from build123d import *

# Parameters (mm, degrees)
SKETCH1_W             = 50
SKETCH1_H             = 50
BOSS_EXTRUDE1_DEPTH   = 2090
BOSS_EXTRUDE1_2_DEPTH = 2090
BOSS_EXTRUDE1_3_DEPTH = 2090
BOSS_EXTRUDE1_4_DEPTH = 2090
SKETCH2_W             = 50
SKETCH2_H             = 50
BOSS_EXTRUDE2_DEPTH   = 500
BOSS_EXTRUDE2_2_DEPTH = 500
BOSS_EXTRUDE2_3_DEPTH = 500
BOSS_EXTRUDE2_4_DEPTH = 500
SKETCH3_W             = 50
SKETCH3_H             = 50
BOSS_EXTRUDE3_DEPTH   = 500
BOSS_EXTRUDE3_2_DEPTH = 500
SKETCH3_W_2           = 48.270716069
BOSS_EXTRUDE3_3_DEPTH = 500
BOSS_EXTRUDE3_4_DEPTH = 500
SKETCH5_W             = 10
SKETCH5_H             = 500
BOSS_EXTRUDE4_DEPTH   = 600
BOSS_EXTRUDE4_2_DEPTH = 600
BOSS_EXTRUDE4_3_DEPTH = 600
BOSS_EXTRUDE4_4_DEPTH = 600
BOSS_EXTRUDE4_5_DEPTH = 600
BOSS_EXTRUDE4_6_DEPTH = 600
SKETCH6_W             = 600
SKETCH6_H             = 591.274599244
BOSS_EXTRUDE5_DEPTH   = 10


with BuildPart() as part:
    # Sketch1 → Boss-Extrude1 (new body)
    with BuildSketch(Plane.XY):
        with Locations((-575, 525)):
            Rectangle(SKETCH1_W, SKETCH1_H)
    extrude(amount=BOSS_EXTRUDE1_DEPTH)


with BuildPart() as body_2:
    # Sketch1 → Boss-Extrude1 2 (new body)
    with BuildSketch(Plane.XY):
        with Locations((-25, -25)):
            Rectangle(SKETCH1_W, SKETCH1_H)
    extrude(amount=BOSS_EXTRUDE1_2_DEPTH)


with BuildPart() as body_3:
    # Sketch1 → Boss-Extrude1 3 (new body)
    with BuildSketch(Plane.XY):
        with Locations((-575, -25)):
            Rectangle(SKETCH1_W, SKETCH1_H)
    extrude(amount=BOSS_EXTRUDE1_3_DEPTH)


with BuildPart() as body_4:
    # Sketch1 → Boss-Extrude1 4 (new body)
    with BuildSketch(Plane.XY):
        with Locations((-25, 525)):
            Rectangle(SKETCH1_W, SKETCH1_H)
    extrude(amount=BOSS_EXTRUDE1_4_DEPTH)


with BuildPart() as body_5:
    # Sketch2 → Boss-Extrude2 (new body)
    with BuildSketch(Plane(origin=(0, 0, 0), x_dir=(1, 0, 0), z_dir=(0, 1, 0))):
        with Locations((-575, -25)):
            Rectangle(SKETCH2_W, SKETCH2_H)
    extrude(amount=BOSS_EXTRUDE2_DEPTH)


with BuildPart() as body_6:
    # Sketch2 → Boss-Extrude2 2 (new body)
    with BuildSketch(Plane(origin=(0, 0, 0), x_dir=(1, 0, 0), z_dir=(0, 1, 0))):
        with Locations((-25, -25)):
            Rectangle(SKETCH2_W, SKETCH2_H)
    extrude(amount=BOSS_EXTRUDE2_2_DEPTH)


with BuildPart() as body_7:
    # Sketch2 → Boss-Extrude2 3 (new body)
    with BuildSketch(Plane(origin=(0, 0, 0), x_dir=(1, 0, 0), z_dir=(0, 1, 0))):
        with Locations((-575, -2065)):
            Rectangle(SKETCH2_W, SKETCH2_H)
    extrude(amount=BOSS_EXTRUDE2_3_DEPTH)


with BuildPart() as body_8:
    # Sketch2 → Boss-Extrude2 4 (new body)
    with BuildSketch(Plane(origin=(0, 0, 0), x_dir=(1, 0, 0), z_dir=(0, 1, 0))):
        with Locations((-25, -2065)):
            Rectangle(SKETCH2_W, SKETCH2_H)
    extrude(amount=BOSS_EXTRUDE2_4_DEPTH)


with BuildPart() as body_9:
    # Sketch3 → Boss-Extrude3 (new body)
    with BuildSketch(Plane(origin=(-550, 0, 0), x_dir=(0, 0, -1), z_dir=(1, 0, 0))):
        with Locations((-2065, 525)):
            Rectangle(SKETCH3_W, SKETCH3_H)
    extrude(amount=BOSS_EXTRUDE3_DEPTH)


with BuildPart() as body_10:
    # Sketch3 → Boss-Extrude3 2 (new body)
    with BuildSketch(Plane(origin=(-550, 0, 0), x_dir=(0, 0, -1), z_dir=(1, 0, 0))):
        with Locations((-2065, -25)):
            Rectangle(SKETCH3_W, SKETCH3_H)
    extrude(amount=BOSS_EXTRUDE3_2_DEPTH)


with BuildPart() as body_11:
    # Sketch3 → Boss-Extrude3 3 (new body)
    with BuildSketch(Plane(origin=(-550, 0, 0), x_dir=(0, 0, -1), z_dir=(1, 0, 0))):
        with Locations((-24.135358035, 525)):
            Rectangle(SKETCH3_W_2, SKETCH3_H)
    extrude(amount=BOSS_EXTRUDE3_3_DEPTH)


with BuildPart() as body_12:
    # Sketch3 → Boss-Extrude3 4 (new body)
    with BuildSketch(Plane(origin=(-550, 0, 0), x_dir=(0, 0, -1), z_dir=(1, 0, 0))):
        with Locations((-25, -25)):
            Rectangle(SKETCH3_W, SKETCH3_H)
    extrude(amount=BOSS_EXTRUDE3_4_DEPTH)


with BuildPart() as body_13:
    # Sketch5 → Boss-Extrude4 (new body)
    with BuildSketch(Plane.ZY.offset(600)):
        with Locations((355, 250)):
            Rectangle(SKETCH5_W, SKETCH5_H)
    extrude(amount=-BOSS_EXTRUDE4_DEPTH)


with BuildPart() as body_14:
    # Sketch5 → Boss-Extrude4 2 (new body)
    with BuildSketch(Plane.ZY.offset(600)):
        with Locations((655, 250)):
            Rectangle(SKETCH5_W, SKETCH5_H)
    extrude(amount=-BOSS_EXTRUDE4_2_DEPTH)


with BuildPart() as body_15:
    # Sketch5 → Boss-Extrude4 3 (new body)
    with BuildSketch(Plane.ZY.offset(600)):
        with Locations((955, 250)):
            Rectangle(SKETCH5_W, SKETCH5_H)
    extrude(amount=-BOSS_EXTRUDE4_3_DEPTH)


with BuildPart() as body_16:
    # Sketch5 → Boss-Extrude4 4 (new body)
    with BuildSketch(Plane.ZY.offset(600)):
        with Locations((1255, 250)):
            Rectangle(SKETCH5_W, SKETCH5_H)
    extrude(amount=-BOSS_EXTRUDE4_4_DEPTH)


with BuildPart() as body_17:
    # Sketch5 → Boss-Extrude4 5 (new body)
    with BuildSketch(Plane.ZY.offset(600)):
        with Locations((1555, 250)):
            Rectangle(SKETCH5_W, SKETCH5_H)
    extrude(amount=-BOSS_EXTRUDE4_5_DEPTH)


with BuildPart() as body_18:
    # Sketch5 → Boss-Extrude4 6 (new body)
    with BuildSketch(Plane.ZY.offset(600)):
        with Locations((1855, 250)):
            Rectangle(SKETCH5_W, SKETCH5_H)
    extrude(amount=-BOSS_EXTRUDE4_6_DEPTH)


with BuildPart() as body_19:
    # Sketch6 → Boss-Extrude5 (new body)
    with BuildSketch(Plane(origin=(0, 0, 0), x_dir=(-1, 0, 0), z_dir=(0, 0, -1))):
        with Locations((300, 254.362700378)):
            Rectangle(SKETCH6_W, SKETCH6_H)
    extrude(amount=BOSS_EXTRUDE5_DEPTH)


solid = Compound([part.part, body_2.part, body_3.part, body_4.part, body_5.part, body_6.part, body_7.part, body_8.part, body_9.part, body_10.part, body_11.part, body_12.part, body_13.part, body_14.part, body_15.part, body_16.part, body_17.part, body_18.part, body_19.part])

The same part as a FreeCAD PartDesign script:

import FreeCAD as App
import Part
import Sketcher

V = App.Vector


def add_polygon(sketch, points):
    """Adds a closed chain of lines whose ends are joined by coincident constraints."""
    first, n = sketch.GeometryCount, len(points)
    for a, b in zip(points, points[1:] + points[:1]):
        sketch.addGeometry(Part.LineSegment(App.Vector(*a, 0), App.Vector(*b, 0)), False)
    for i in range(n):
        sketch.addConstraint(Sketcher.Constraint("Coincident", first + i, 2, first + (i + 1) % n, 1))

doc = App.newDocument("Part")
body = doc.addObject("PartDesign::Body", "Body")

sketch1 = doc.addObject("Sketcher::SketchObject", "Sketch")
body.addObject(sketch1)
sketch1.AttachmentSupport = (doc.XY_Plane, [""])
sketch1.MapMode = "FlatFace"
add_polygon(sketch1, [(-600, 550), (-600, 500), (-550, 500), (-550, 550)])
sketch1.addConstraint([
    Sketcher.Constraint("Vertical", 0),
    Sketcher.Constraint("Horizontal", 1),
    Sketcher.Constraint("Vertical", 2),
    Sketcher.Constraint("Horizontal", 3),
    Sketcher.Constraint("Equal", 3, 0),
    Sketcher.Constraint("DistanceX", 1, 1, 1, 2, 50.0),
    Sketcher.Constraint("DistanceX", 0, 2, -1, 1, 600.0),
    Sketcher.Constraint("DistanceY", -1, 1, 0, 2, 500.0),
])
pad1 = doc.addObject("PartDesign::Pad", "Pad")
body.addObject(pad1)
pad1.Profile = sketch1
pad1.Length = 2090
body2 = doc.addObject("PartDesign::Body", "Body001")

sketch2 = doc.addObject("Sketcher::SketchObject", "Sketch001")
body2.addObject(sketch2)
sketch2.AttachmentSupport = (doc.getObject("XY_Plane001"), [""])
sketch2.MapMode = "FlatFace"
add_polygon(sketch2, [(-50, 0), (-50, -50), (0, -50), (0, 0)])
sketch2.addConstraint([
    Sketcher.Constraint("Vertical", 0),
    Sketcher.Constraint("Horizontal", 1),
    Sketcher.Constraint("Vertical", 2),
    Sketcher.Constraint("Horizontal", 3),
    Sketcher.Constraint("Coincident", 2, 2, -1, 1),
    Sketcher.Constraint("Equal", 3, 0),
    Sketcher.Constraint("DistanceX", 1, 1, 1, 2, 50.0),
])
pad2 = doc.addObject("PartDesign::Pad", "Pad001")
body2.addObject(pad2)
pad2.Profile = sketch2
pad2.Length = 2090
body3 = doc.addObject("PartDesign::Body", "Body002")

sketch3 = doc.addObject("Sketcher::SketchObject", "Sketch002")
body3.addObject(sketch3)
sketch3.AttachmentSupport = (doc.getObject("XY_Plane002"), [""])
sketch3.MapMode = "FlatFace"
add_polygon(sketch3, [(-600, 0), (-600, -50), (-550, -50), (-550, 0)])
sketch3.addConstraint([
    Sketcher.Constraint("Vertical", 0),
    Sketcher.Constraint("Horizontal", 1),
    Sketcher.Constraint("Vertical", 2),
    Sketcher.Constraint("Horizontal", 3),
    Sketcher.Constraint("PointOnObject", 2, 2, -1),
    Sketcher.Constraint("Equal", 3, 0),
    Sketcher.Constraint("DistanceX", 1, 1, 1, 2, 50.0),
    Sketcher.Constraint("DistanceX", 0, 2, -1, 1, 600.0),
])
pad3 = doc.addObject("PartDesign::Pad", "Pad002")
body3.addObject(pad3)
pad3.Profile = sketch3
pad3.Length = 2090
body4 = doc.addObject("PartDesign::Body", "Body003")

sketch4 = doc.addObject("Sketcher::SketchObject", "Sketch003")
body4.addObject(sketch4)
sketch4.AttachmentSupport = (doc.getObject("XY_Plane003"), [""])
sketch4.MapMode = "FlatFace"
add_polygon(sketch4, [(-50, 550), (-50, 500), (0, 500), (0, 550)])
sketch4.addConstraint([
    Sketcher.Constraint("Vertical", 0),
    Sketcher.Constraint("Horizontal", 1),
    Sketcher.Constraint("Vertical", 2),
    Sketcher.Constraint("Horizontal", 3),
    Sketcher.Constraint("PointOnObject", 1, 2, -2),
    Sketcher.Constraint("Equal", 3, 0),
    Sketcher.Constraint("DistanceX", 1, 1, 1, 2, 50.0),
    Sketcher.Constraint("DistanceY", -1, 1, 0, 2, 500.0),
])
pad4 = doc.addObject("PartDesign::Pad", "Pad003")
body4.addObject(pad4)
pad4.Profile = sketch4
pad4.Length = 2090
body5 = doc.addObject("PartDesign::Body", "Body004")

sketch5 = doc.addObject("Sketcher::SketchObject", "Sketch004")
body5.addObject(sketch5)
sketch5.AttachmentSupport = (doc.getObject("XZ_Plane004"), [""])
sketch5.MapMode = "FlatFace"
add_polygon(sketch5, [(-600, 0), (-600, 50), (-550, 50), (-550, 0)])
sketch5.addConstraint([
    Sketcher.Constraint("Vertical", 0),
    Sketcher.Constraint("Horizontal", 1),
    Sketcher.Constraint("Vertical", 2),
    Sketcher.Constraint("Horizontal", 3),
    Sketcher.Constraint("PointOnObject", 2, 2, -1),
    Sketcher.Constraint("Equal", 3, 0),
    Sketcher.Constraint("DistanceX", 1, 1, 1, 2, 50.0),
    Sketcher.Constraint("DistanceX", 0, 2, -1, 1, 600.0),
])
pad5 = doc.addObject("PartDesign::Pad", "Pad004")
body5.addObject(pad5)
pad5.Profile = sketch5
pad5.Length = 500
pad5.Reversed = True
body6 = doc.addObject("PartDesign::Body", "Body005")

sketch6 = doc.addObject("Sketcher::SketchObject", "Sketch005")
body6.addObject(sketch6)
sketch6.AttachmentSupport = (doc.getObject("XZ_Plane005"), [""])
sketch6.MapMode = "FlatFace"
add_polygon(sketch6, [(-50, 0), (-50, 50), (0, 50), (0, 0)])
sketch6.addConstraint([
    Sketcher.Constraint("Vertical", 0),
    Sketcher.Constraint("Horizontal", 1),
    Sketcher.Constraint("Vertical", 2),
    Sketcher.Constraint("Horizontal", 3),
    Sketcher.Constraint("Coincident", 2, 2, -1, 1),
    Sketcher.Constraint("Equal", 3, 0),
    Sketcher.Constraint("DistanceX", 1, 1, 1, 2, 50.0),
])
pad6 = doc.addObject("PartDesign::Pad", "Pad005")
body6.addObject(pad6)
pad6.Profile = sketch6
pad6.Length = 500
pad6.Reversed = True
body7 = doc.addObject("PartDesign::Body", "Body006")

sketch7 = doc.addObject("Sketcher::SketchObject", "Sketch006")
body7.addObject(sketch7)
sketch7.AttachmentSupport = (doc.getObject("XZ_Plane006"), [""])
sketch7.MapMode = "FlatFace"
add_polygon(sketch7, [(-600, 2040), (-600, 2090), (-550, 2090), (-550, 2040)])
sketch7.addConstraint([
    Sketcher.Constraint("Vertical", 0),
    Sketcher.Constraint("Horizontal", 1),
    Sketcher.Constraint("Vertical", 2),
    Sketcher.Constraint("Horizontal", 3),
    Sketcher.Constraint("Equal", 3, 0),
    Sketcher.Constraint("DistanceX", 1, 1, 1, 2, 50.0),
    Sketcher.Constraint("DistanceX", 0, 2, -1, 1, 600.0),
    Sketcher.Constraint("DistanceY", -1, 1, 0, 2, 2090.0),
])
pad7 = doc.addObject("PartDesign::Pad", "Pad006")
body7.addObject(pad7)
pad7.Profile = sketch7
pad7.Length = 500
pad7.Reversed = True
body8 = doc.addObject("PartDesign::Body", "Body007")

sketch8 = doc.addObject("Sketcher::SketchObject", "Sketch007")
body8.addObject(sketch8)
sketch8.AttachmentSupport = (doc.getObject("XZ_Plane007"), [""])
sketch8.MapMode = "FlatFace"
add_polygon(sketch8, [(-50, 2040), (-50, 2090), (0, 2090), (0, 2040)])
sketch8.addConstraint([
    Sketcher.Constraint("Vertical", 0),
    Sketcher.Constraint("Horizontal", 1),
    Sketcher.Constraint("Vertical", 2),
    Sketcher.Constraint("Horizontal", 3),
    Sketcher.Constraint("PointOnObject", 1, 2, -2),
    Sketcher.Constraint("Equal", 3, 0),
    Sketcher.Constraint("DistanceX", 1, 1, 1, 2, 50.0),
    Sketcher.Constraint("DistanceY", -1, 1, 0, 2, 2090.0),
])
pad8 = doc.addObject("PartDesign::Pad", "Pad007")
body8.addObject(pad8)
pad8.Profile = sketch8
pad8.Length = 500
pad8.Reversed = True
body9 = doc.addObject("PartDesign::Body", "Body008")

sketch9 = doc.addObject("Sketcher::SketchObject", "Sketch008")
body9.addObject(sketch9)
sketch9.AttachmentSupport = (doc.getObject("YZ_Plane008"), [""])
sketch9.MapMode = "FlatFace"
sketch9.AttachmentOffset = App.Placement(V(0, 0, -550), App.Rotation())
add_polygon(sketch9, [(550, 2090), (500, 2090), (500, 2040), (550, 2040)])
sketch9.addConstraint([
    Sketcher.Constraint("Horizontal", 0),
    Sketcher.Constraint("Vertical", 1),
    Sketcher.Constraint("Horizontal", 2),
    Sketcher.Constraint("Vertical", 3),
    Sketcher.Constraint("Equal", 2, 1),
    Sketcher.Constraint("DistanceX", 0, 2, 0, 1, 50.0),
    Sketcher.Constraint("DistanceX", -1, 1, 0, 2, 500.0),
    Sketcher.Constraint("DistanceY", -1, 1, 0, 2, 2090.0),
])
pad9 = doc.addObject("PartDesign::Pad", "Pad008")
body9.addObject(pad9)
pad9.Profile = sketch9
pad9.Length = 500
body10 = doc.addObject("PartDesign::Body", "Body009")

sketch10 = doc.addObject("Sketcher::SketchObject", "Sketch009")
body10.addObject(sketch10)
sketch10.AttachmentSupport = (doc.getObject("YZ_Plane009"), [""])
sketch10.MapMode = "FlatFace"
sketch10.AttachmentOffset = App.Placement(V(0, 0, -550), App.Rotation())
add_polygon(sketch10, [(0, 2090), (-50, 2090), (-50, 2040), (0, 2040)])
sketch10.addConstraint([
    Sketcher.Constraint("Horizontal", 0),
    Sketcher.Constraint("Vertical", 1),
    Sketcher.Constraint("Horizontal", 2),
    Sketcher.Constraint("Vertical", 3),
    Sketcher.Constraint("PointOnObject", 2, 2, -2),
    Sketcher.Constraint("Equal", 2, 1),
    Sketcher.Constraint("DistanceX", 0, 2, 0, 1, 50.0),
    Sketcher.Constraint("DistanceY", -1, 1, 0, 2, 2090.0),
])
pad10 = doc.addObject("PartDesign::Pad", "Pad009")
body10.addObject(pad10)
pad10.Profile = sketch10
pad10.Length = 500
body11 = doc.addObject("PartDesign::Body", "Body010")

sketch11 = doc.addObject("Sketcher::SketchObject", "Sketch010")
body11.addObject(sketch11)
sketch11.AttachmentSupport = (doc.getObject("YZ_Plane010"), [""])
sketch11.MapMode = "FlatFace"
sketch11.AttachmentOffset = App.Placement(V(0, 0, -550), App.Rotation())
add_polygon(sketch11, [(550, 48), (500, 48), (500, 0), (550, 0)])
sketch11.addConstraint([
    Sketcher.Constraint("Horizontal", 0),
    Sketcher.Constraint("Vertical", 1),
    Sketcher.Constraint("Horizontal", 2),
    Sketcher.Constraint("Vertical", 3),
    Sketcher.Constraint("PointOnObject", 1, 2, -1),
    Sketcher.Constraint("DistanceX", 0, 2, 0, 1, 50.0),
    Sketcher.Constraint("DistanceX", -1, 1, 0, 2, 500.0),
    Sketcher.Constraint("DistanceY", 1, 2, 1, 1, 48.270716),
])
pad11 = doc.addObject("PartDesign::Pad", "Pad010")
body11.addObject(pad11)
pad11.Profile = sketch11
pad11.Length = 500
body12 = doc.addObject("PartDesign::Body", "Body011")

sketch12 = doc.addObject("Sketcher::SketchObject", "Sketch011")
body12.addObject(sketch12)
sketch12.AttachmentSupport = (doc.getObject("YZ_Plane011"), [""])
sketch12.MapMode = "FlatFace"
sketch12.AttachmentOffset = App.Placement(V(0, 0, -550), App.Rotation())
add_polygon(sketch12, [(0, 50), (-50, 50), (-50, 0), (0, 0)])
sketch12.addConstraint([
    Sketcher.Constraint("Horizontal", 0),
    Sketcher.Constraint("Vertical", 1),
    Sketcher.Constraint("Horizontal", 2),
    Sketcher.Constraint("Vertical", 3),
    Sketcher.Constraint("Coincident", 2, 2, -1, 1),
    Sketcher.Constraint("Equal", 2, 1),
    Sketcher.Constraint("DistanceX", 0, 2, 0, 1, 50.0),
])
pad12 = doc.addObject("PartDesign::Pad", "Pad011")
body12.addObject(pad12)
pad12.Profile = sketch12
pad12.Length = 500
body13 = doc.addObject("PartDesign::Body", "Body012")

sketch13 = doc.addObject("Sketcher::SketchObject", "Sketch012")
body13.addObject(sketch13)
sketch13.AttachmentSupport = (doc.getObject("YZ_Plane012"), [""])
sketch13.MapMode = "FlatFace"
sketch13.AttachmentOffset = App.Placement(V(0, 0, -600), App.Rotation())
add_polygon(sketch13, [(500, 350), (0, 350), (0, 360), (500, 360)])
sketch13.addConstraint([
    Sketcher.Constraint("Horizontal", 0),
    Sketcher.Constraint("Vertical", 1),
    Sketcher.Constraint("Horizontal", 2),
    Sketcher.Constraint("Vertical", 3),
    Sketcher.Constraint("PointOnObject", 0, 2, -2),
    Sketcher.Constraint("DistanceX", 0, 2, 0, 1, 500.0),
    Sketcher.Constraint("DistanceY", 1, 1, 1, 2, 10.0),
    Sketcher.Constraint("DistanceY", -1, 1, 0, 2, 350.0),
])
pad13 = doc.addObject("PartDesign::Pad", "Pad012")
body13.addObject(pad13)
pad13.Profile = sketch13
pad13.Length = 600
body14 = doc.addObject("PartDesign::Body", "Body013")

sketch14 = doc.addObject("Sketcher::SketchObject", "Sketch013")
body14.addObject(sketch14)
sketch14.AttachmentSupport = (doc.getObject("YZ_Plane013"), [""])
sketch14.MapMode = "FlatFace"
sketch14.AttachmentOffset = App.Placement(V(0, 0, -600), App.Rotation())
add_polygon(sketch14, [(500, 650), (0, 650), (0, 660), (500, 660)])
sketch14.addConstraint([
    Sketcher.Constraint("Horizontal", 0),
    Sketcher.Constraint("Vertical", 1),
    Sketcher.Constraint("Horizontal", 2),
    Sketcher.Constraint("Vertical", 3),
    Sketcher.Constraint("PointOnObject", 0, 2, -2),
    Sketcher.Constraint("DistanceX", 0, 2, 0, 1, 500.0),
    Sketcher.Constraint("DistanceY", 1, 1, 1, 2, 10.0),
    Sketcher.Constraint("DistanceY", -1, 1, 0, 2, 650.0),
])
pad14 = doc.addObject("PartDesign::Pad", "Pad013")
body14.addObject(pad14)
pad14.Profile = sketch14
pad14.Length = 600
body15 = doc.addObject("PartDesign::Body", "Body014")

sketch15 = doc.addObject("Sketcher::SketchObject", "Sketch014")
body15.addObject(sketch15)
sketch15.AttachmentSupport = (doc.getObject("YZ_Plane014"), [""])
sketch15.MapMode = "FlatFace"
sketch15.AttachmentOffset = App.Placement(V(0, 0, -600), App.Rotation())
add_polygon(sketch15, [(500, 950), (0, 950), (0, 960), (500, 960)])
sketch15.addConstraint([
    Sketcher.Constraint("Horizontal", 0),
    Sketcher.Constraint("Vertical", 1),
    Sketcher.Constraint("Horizontal", 2),
    Sketcher.Constraint("Vertical", 3),
    Sketcher.Constraint("PointOnObject", 0, 2, -2),
    Sketcher.Constraint("DistanceX", 0, 2, 0, 1, 500.0),
    Sketcher.Constraint("DistanceY", 1, 1, 1, 2, 10.0),
    Sketcher.Constraint("DistanceY", -1, 1, 0, 2, 950.0),
])
pad15 = doc.addObject("PartDesign::Pad", "Pad014")
body15.addObject(pad15)
pad15.Profile = sketch15
pad15.Length = 600
body16 = doc.addObject("PartDesign::Body", "Body015")

sketch16 = doc.addObject("Sketcher::SketchObject", "Sketch015")
body16.addObject(sketch16)
sketch16.AttachmentSupport = (doc.getObject("YZ_Plane015"), [""])
sketch16.MapMode = "FlatFace"
sketch16.AttachmentOffset = App.Placement(V(0, 0, -600), App.Rotation())
add_polygon(sketch16, [(500, 1250), (0, 1250), (0, 1260), (500, 1260)])
sketch16.addConstraint([
    Sketcher.Constraint("Horizontal", 0),
    Sketcher.Constraint("Vertical", 1),
    Sketcher.Constraint("Horizontal", 2),
    Sketcher.Constraint("Vertical", 3),
    Sketcher.Constraint("PointOnObject", 0, 2, -2),
    Sketcher.Constraint("DistanceX", 0, 2, 0, 1, 500.0),
    Sketcher.Constraint("DistanceY", 1, 1, 1, 2, 10.0),
    Sketcher.Constraint("DistanceY", -1, 1, 0, 2, 1250.0),
])
pad16 = doc.addObject("PartDesign::Pad", "Pad015")
body16.addObject(pad16)
pad16.Profile = sketch16
pad16.Length = 600
body17 = doc.addObject("PartDesign::Body", "Body016")

sketch17 = doc.addObject("Sketcher::SketchObject", "Sketch016")
body17.addObject(sketch17)
sketch17.AttachmentSupport = (doc.getObject("YZ_Plane016"), [""])
sketch17.MapMode = "FlatFace"
sketch17.AttachmentOffset = App.Placement(V(0, 0, -600), App.Rotation())
add_polygon(sketch17, [(500, 1550), (0, 1550), (0, 1560), (500, 1560)])
sketch17.addConstraint([
    Sketcher.Constraint("Horizontal", 0),
    Sketcher.Constraint("Vertical", 1),
    Sketcher.Constraint("Horizontal", 2),
    Sketcher.Constraint("Vertical", 3),
    Sketcher.Constraint("PointOnObject", 0, 2, -2),
    Sketcher.Constraint("DistanceX", 0, 2, 0, 1, 500.0),
    Sketcher.Constraint("DistanceY", 1, 1, 1, 2, 10.0),
    Sketcher.Constraint("DistanceY", -1, 1, 0, 2, 1550.0),
])
pad17 = doc.addObject("PartDesign::Pad", "Pad016")
body17.addObject(pad17)
pad17.Profile = sketch17
pad17.Length = 600
body18 = doc.addObject("PartDesign::Body", "Body017")

sketch18 = doc.addObject("Sketcher::SketchObject", "Sketch017")
body18.addObject(sketch18)
sketch18.AttachmentSupport = (doc.getObject("YZ_Plane017"), [""])
sketch18.MapMode = "FlatFace"
sketch18.AttachmentOffset = App.Placement(V(0, 0, -600), App.Rotation())
add_polygon(sketch18, [(500, 1850), (0, 1850), (0, 1860), (500, 1860)])
sketch18.addConstraint([
    Sketcher.Constraint("Horizontal", 0),
    Sketcher.Constraint("Vertical", 1),
    Sketcher.Constraint("Horizontal", 2),
    Sketcher.Constraint("Vertical", 3),
    Sketcher.Constraint("PointOnObject", 0, 2, -2),
    Sketcher.Constraint("DistanceX", 0, 2, 0, 1, 500.0),
    Sketcher.Constraint("DistanceY", 1, 1, 1, 2, 10.0),
    Sketcher.Constraint("DistanceY", -1, 1, 0, 2, 1850.0),
])
pad18 = doc.addObject("PartDesign::Pad", "Pad017")
body18.addObject(pad18)
pad18.Profile = sketch18
pad18.Length = 600
body19 = doc.addObject("PartDesign::Body", "Body018")

sketch19 = doc.addObject("Sketcher::SketchObject", "Sketch018")
body19.addObject(sketch19)
sketch19.AttachmentSupport = (doc.getObject("XY_Plane018"), [""])
sketch19.MapMode = "FlatFace"
add_polygon(sketch19, [(0, 550), (0, -41), (-600, -41), (-600, 550)])
sketch19.addConstraint([
    Sketcher.Constraint("Vertical", 0),
    Sketcher.Constraint("Horizontal", 1),
    Sketcher.Constraint("Vertical", 2),
    Sketcher.Constraint("Horizontal", 3),
    Sketcher.Constraint("PointOnObject", 0, 2, -2),
    Sketcher.Constraint("DistanceX", 1, 2, 1, 1, 600.0),
    Sketcher.Constraint("DistanceY", -1, 1, 2, 2, 550.0),
    Sketcher.Constraint("DistanceY", 0, 2, 0, 1, 591.274599),
])
pad19 = doc.addObject("PartDesign::Pad", "Pad018")
body19.addObject(pad19)
pad19.Profile = sketch19
pad19.Length = 10
pad19.Reversed = True

doc.recompute()
